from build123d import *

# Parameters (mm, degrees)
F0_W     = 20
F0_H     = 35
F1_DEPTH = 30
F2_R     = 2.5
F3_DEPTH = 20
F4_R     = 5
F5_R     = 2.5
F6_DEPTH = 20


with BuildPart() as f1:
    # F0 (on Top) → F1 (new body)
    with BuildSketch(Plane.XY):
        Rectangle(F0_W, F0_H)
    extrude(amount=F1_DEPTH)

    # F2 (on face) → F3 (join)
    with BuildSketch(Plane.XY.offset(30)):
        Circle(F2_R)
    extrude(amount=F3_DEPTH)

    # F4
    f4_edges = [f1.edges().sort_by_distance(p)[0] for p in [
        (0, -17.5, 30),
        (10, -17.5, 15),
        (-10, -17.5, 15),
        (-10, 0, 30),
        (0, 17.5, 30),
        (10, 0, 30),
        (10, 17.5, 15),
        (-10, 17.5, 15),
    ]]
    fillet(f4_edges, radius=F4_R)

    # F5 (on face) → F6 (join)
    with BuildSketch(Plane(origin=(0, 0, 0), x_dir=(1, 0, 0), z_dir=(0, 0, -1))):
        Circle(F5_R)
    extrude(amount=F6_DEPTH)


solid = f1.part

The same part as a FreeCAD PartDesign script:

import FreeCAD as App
import Part
import Sketcher
from FreeCAD import Vector
Q = App.Units.Quantity


def edges_at(feature, points):
    """Names of the edges that pass closest to the given points."""
    edges = feature.Shape.Edges
    near = lambda p: min(range(len(edges)), key=lambda i: edges[i].distToShape(Part.Vertex(*p))[0])
    return sorted({f"Edge{near(p) + 1}" for p in points})


def add_polygon(sketch, points):
    """Adds a closed chain of lines whose ends are joined by coincident constraints."""
    first, n = sketch.GeometryCount, len(points)
    for a, b in zip(points, points[1:] + points[:1]):
        sketch.addGeometry(Part.LineSegment(App.Vector(*a, 0), App.Vector(*b, 0)), False)
    for i in range(n):
        sketch.addConstraint(Sketcher.Constraint("Coincident", first + i, 2, first + (i + 1) % n, 1))

doc = App.newDocument("Part")
params = doc.addObject("Spreadsheet::Sheet", "Params")
for row, (alias, value) in enumerate([
    ("sketch1_width", "20 mm"),
    ("sketch1_height", "35 mm"),
    ("pad1_length", "30 mm"),
    ("sketch2_diameter", "5 mm"),
    ("pad2_length", "20 mm"),
    ("fillet_radius", "5 mm"),
    ("sketch3_diameter", "5 mm"),
    ("pad3_length", "20 mm"),
], start=1):
    params.set(f"A{row}", alias)
    params.set(f"B{row}", "=" + value)
    params.setAlias(f"B{row}", alias)

body = doc.addObject("PartDesign::Body", "Body")

# Sketch on XY plane
sketch1 = body.newObject("Sketcher::SketchObject", "Sketch")
sketch1.AttachmentSupport = (doc.getObject("XY_Plane"), [""])
sketch1.MapMode = "FlatFace"
add_polygon(sketch1, [(-10, 17.5), (-10, -17.5), (10, -17.5), (10, 17.5)])  # lines 0-3
sketch1.addConstraint(Sketcher.Constraint("Vertical", 0))
sketch1.addConstraint(Sketcher.Constraint("Horizontal", 1))
sketch1.addConstraint(Sketcher.Constraint("Vertical", 2))
sketch1.addConstraint(Sketcher.Constraint("Horizontal", 3))
sketch1.addConstraint(Sketcher.Constraint("Symmetric", 0, 2, 2, 2, -1, 1))
sketch1.addConstraint(Sketcher.Constraint("DistanceX", 1, 1, 1, 2, Q("20 mm")))
sketch1.addConstraint(Sketcher.Constraint("DistanceY", 0, 2, 0, 1, Q("35 mm")))
sketch1.setExpression("Constraints[9]", "Params.sketch1_width")
sketch1.setExpression("Constraints[10]", "Params.sketch1_height")
pad1 = body.newObject("PartDesign::Pad", "Pad")
pad1.Profile = sketch1
pad1.setExpression("Length", "Params.pad1_length")

# Sketch on XY plane
sketch2 = body.newObject("Sketcher::SketchObject", "Sketch001")
sketch2.AttachmentSupport = (doc.getObject("XY_Plane"), [""])
sketch2.MapMode = "FlatFace"
sketch2.AttachmentOffset = App.Placement(Vector(0, 0, 30), App.Rotation())
sketch2.addGeometry(Part.Circle(Vector(0, 0, 0), Vector(0, 0, 1), 2.5), False)
sketch2.addConstraint(Sketcher.Constraint("Coincident", 0, 3, -1, 1))
sketch2.addConstraint(Sketcher.Constraint("Diameter", 0, Q("5 mm")))
sketch2.setExpression("Constraints[1]", "Params.sketch2_diameter")
pad2 = body.newObject("PartDesign::Pad", "Pad001")
pad2.Profile = sketch2
pad2.setExpression("Length", "Params.pad2_length")
doc.recompute()

fillet = body.newObject("PartDesign::Fillet", "Fillet")
fillet.Base = (pad2, edges_at(pad2, [
    (0, -17.5, 30),
    (10, -17.5, 15),
    (-10, -17.5, 15),
    (-10, 0, 30),
    (0, 17.5, 30),
    (10, 0, 30),
    (10, 17.5, 15),
    (-10, 17.5, 15),
]))
fillet.setExpression("Radius", "Params.fillet_radius")

# Sketch on XY plane
sketch3 = body.newObject("Sketcher::SketchObject", "Sketch002")
sketch3.AttachmentSupport = (doc.getObject("XY_Plane"), [""])
sketch3.MapMode = "FlatFace"
sketch3.addGeometry(Part.Circle(Vector(0, 0, 0), Vector(0, 0, 1), 2.5), False)
sketch3.addConstraint(Sketcher.Constraint("Coincident", 0, 3, -1, 1))
sketch3.addConstraint(Sketcher.Constraint("Diameter", 0, Q("5 mm")))
sketch3.setExpression("Constraints[1]", "Params.sketch3_diameter")
pad3 = body.newObject("PartDesign::Pad", "Pad002")
pad3.Profile = sketch3
pad3.setExpression("Length", "Params.pad3_length")
pad3.Reversed = True

doc.recompute()
